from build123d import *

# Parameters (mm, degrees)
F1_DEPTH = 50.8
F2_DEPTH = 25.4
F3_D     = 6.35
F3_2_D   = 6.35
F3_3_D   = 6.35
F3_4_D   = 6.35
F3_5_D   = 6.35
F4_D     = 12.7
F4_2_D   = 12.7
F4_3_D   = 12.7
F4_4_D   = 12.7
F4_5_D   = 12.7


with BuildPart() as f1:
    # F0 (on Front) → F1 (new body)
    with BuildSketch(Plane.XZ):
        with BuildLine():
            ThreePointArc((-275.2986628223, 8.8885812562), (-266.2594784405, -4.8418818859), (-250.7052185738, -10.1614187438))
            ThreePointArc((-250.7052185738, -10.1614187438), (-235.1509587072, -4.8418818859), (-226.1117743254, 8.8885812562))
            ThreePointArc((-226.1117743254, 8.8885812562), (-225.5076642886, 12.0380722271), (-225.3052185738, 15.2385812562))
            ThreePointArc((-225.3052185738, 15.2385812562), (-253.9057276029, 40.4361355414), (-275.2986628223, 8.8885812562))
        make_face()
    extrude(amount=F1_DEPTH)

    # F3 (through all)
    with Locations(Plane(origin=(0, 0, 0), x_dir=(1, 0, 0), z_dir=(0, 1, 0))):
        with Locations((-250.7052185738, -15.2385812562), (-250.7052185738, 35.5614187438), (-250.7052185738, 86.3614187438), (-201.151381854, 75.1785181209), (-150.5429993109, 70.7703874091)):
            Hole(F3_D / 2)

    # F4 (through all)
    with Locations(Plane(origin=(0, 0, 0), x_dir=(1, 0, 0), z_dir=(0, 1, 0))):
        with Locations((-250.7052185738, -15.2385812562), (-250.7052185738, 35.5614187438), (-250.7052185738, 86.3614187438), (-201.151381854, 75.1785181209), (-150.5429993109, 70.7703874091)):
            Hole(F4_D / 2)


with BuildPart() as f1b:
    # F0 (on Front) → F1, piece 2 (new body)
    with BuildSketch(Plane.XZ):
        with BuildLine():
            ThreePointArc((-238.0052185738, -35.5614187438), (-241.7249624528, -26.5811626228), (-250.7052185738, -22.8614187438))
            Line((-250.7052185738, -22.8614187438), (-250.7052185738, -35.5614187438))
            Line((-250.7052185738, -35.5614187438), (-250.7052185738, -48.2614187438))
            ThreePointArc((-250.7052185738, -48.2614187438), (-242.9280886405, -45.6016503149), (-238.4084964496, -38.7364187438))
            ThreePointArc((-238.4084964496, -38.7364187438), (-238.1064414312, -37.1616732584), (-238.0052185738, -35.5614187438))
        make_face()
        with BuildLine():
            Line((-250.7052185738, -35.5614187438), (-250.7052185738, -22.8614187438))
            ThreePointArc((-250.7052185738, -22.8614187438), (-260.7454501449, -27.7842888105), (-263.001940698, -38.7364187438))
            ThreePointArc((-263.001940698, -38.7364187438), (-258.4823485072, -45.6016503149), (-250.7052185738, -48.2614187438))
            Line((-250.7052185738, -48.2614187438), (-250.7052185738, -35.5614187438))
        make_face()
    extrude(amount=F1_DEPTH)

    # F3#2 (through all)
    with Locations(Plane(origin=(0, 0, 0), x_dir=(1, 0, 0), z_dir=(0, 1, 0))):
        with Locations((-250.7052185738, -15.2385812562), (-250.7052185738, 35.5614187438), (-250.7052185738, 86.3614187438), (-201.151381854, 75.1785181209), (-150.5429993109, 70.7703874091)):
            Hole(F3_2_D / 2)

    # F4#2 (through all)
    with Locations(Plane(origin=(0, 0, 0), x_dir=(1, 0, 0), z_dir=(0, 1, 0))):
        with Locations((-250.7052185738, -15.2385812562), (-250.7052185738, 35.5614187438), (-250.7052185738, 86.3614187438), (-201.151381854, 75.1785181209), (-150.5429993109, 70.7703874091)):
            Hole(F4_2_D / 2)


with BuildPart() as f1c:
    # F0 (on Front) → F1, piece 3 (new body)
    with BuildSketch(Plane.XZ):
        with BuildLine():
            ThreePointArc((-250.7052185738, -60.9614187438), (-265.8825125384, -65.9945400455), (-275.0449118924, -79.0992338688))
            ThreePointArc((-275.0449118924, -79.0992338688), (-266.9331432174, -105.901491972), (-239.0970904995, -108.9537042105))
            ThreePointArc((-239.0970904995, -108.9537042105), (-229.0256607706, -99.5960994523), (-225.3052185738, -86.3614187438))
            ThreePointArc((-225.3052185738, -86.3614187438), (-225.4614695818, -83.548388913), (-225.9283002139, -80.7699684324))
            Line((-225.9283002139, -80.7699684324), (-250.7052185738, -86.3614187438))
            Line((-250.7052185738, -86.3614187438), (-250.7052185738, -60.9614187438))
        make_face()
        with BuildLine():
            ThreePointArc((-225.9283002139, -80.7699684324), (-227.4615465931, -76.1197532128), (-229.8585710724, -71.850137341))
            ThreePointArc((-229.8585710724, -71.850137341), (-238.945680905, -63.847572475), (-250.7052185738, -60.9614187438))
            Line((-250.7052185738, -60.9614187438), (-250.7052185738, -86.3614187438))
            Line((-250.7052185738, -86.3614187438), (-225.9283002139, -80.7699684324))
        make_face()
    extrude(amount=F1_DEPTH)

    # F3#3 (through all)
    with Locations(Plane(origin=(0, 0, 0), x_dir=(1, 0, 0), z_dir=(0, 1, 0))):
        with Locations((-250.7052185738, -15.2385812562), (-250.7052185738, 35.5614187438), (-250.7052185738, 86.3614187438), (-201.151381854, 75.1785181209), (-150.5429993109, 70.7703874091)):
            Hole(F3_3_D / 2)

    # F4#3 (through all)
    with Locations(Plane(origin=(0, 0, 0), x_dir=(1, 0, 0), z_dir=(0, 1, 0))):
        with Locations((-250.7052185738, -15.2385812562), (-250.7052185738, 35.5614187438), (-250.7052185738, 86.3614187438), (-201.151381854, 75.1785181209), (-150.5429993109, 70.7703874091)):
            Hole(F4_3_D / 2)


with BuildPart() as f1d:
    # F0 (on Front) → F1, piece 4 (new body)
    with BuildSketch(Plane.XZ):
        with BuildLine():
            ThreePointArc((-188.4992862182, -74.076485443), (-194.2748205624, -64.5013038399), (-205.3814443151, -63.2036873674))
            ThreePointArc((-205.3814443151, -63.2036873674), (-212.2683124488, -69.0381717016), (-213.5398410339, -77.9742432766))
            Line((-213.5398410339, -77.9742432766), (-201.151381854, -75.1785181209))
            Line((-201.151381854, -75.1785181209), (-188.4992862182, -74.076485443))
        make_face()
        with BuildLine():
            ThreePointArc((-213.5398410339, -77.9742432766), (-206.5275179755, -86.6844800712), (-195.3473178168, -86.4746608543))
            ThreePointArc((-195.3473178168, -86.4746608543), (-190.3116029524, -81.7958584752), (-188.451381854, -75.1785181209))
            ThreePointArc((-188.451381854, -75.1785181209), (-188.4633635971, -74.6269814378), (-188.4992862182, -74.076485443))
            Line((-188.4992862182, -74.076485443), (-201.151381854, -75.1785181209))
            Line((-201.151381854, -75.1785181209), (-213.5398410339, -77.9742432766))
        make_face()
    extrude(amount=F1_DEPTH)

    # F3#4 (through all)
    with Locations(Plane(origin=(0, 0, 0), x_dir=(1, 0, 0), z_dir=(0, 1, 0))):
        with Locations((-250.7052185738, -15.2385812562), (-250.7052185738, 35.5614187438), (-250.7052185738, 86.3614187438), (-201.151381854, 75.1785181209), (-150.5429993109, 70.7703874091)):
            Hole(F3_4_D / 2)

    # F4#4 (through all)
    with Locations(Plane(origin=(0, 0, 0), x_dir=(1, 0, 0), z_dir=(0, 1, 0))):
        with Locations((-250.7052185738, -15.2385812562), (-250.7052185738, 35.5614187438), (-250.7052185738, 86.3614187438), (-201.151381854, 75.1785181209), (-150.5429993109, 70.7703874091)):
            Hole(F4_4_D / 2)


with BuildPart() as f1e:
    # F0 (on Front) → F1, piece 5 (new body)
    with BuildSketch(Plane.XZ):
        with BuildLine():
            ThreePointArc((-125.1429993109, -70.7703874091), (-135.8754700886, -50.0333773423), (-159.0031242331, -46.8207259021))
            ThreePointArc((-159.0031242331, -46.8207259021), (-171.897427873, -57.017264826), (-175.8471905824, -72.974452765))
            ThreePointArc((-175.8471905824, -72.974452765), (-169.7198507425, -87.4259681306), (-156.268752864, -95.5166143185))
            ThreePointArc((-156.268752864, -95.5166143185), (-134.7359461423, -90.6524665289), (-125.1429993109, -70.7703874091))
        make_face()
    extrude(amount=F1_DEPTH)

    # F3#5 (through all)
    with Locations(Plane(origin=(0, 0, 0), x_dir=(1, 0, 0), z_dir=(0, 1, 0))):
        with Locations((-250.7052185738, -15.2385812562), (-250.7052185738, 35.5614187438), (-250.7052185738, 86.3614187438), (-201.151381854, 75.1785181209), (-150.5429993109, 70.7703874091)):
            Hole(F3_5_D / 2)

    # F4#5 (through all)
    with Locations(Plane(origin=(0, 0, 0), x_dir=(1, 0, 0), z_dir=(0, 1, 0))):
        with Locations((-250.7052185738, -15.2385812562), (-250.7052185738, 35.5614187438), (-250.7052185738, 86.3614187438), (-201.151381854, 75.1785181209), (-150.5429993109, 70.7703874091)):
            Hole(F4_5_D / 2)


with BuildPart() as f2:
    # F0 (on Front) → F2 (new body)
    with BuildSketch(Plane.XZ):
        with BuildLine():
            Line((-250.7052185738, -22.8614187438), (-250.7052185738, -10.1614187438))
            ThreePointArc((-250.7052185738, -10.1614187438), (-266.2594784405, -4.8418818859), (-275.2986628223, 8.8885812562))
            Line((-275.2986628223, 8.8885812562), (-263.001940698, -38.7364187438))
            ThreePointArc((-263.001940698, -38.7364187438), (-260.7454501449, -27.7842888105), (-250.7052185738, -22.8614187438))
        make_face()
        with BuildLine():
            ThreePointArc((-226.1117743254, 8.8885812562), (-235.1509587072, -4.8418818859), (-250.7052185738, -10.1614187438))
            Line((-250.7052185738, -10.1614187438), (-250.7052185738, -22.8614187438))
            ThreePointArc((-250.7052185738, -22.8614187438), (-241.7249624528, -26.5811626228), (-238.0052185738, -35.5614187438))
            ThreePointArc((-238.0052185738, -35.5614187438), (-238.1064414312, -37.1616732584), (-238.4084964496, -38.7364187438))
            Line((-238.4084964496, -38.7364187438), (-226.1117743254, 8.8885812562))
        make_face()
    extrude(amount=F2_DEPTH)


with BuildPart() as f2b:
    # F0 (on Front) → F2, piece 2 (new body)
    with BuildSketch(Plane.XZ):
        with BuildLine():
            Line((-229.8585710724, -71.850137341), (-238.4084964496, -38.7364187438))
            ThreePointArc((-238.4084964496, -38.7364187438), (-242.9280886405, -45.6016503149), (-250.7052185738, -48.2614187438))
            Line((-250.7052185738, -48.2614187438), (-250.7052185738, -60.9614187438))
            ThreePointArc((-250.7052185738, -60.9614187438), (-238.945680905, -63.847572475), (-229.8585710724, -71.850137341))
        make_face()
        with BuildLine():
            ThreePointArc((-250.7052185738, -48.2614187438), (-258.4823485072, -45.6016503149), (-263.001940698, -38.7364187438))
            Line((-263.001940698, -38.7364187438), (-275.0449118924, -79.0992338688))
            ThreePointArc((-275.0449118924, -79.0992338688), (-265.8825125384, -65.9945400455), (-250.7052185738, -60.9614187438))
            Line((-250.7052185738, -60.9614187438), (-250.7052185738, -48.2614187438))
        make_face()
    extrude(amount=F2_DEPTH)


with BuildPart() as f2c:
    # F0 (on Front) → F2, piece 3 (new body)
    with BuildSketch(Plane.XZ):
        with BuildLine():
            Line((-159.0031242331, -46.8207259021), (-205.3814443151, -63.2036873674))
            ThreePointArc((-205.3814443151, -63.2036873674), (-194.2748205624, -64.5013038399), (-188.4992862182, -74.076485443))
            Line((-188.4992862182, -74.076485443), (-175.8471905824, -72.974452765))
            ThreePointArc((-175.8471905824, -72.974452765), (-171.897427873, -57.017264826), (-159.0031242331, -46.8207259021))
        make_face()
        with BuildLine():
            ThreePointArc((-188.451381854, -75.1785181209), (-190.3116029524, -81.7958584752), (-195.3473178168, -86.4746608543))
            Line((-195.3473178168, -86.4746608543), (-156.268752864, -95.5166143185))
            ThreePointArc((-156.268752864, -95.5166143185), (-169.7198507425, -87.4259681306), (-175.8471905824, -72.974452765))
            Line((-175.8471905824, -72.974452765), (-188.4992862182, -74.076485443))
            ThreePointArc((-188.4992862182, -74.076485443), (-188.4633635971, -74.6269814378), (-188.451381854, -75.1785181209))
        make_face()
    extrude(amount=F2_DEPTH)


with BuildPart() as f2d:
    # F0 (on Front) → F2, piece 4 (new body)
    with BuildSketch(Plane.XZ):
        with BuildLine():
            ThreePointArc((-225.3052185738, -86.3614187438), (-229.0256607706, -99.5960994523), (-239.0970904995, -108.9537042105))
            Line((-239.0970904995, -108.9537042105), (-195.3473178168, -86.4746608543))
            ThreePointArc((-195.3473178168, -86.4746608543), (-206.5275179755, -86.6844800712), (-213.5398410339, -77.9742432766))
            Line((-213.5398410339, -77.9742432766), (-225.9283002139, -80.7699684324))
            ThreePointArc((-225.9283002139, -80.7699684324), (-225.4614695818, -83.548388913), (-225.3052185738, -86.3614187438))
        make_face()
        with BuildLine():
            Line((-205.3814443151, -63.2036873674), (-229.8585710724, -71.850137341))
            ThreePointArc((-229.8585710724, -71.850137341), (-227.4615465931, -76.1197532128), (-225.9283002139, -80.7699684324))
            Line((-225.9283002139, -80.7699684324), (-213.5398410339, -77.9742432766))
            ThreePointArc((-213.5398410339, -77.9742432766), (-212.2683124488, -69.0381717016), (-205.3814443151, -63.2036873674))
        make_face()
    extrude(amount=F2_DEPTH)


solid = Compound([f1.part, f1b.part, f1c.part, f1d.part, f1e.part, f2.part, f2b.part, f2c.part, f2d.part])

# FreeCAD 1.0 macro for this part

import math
import FreeCAD as App
import Part
import Sketcher

V = App.Vector
Q = App.Units.Quantity

doc = App.newDocument("Part")
params = doc.addObject("Spreadsheet::Sheet", "Params")
for row, (alias, value) in enumerate([
    ("sketch1_radius", "1 in"),
    ("pad1_length", "2 in"),
    ("sketch2_diameter", "0.25 in"),
    ("hole_diameter", "0.25 in"),
    ("sketch3_diameter", "0.5 in"),
    ("hole2_diameter", "0.5 in"),
    ("sketch4_radius", "0.5 in"),
    ("pad2_length", "2 in"),
    ("sketch5_diameter", "0.25 in"),
    ("hole3_diameter", "0.25 in"),
    ("sketch6_diameter", "0.5 in"),
    ("hole4_diameter", "0.5 in"),
    ("sketch7_radius", "1 in"),
    ("pad3_length", "2 in"),
    ("sketch8_diameter", "0.25 in"),
    ("hole5_diameter", "0.25 in"),
    ("sketch9_diameter", "0.5 in"),
    ("hole6_diameter", "0.5 in"),
    ("sketch10_radius", "0.5 in"),
    ("pad4_length", "2 in"),
    ("sketch11_diameter", "0.25 in"),
    ("hole7_diameter", "0.25 in"),
    ("sketch12_diameter", "0.5 in"),
    ("hole8_diameter", "0.5 in"),
    ("sketch13_diameter", "2 in"),
    ("pad5_length", "2 in"),
    ("sketch14_diameter", "0.25 in"),
    ("hole9_diameter", "0.25 in"),
    ("sketch15_diameter", "0.5 in"),
    ("hole10_diameter", "0.5 in"),
    ("sketch16_radius", "1 in"),
    ("sketch16_radius2", "0.5 in"),
    ("pad6_length", "1 in"),
    ("sketch17_radius", "1 in"),
    ("sketch17_radius2", "0.5 in"),
    ("pad7_length", "1 in"),
    ("sketch18_radius", "1 in"),
    ("sketch18_radius2", "0.5 in"),
    ("pad8_length", "1 in"),
    ("sketch19_radius", "1 in"),
    ("sketch19_radius2", "0.5 in"),
    ("pad9_length", "1 in"),
], start=1):
    params.set(f"A{row}", alias)
    params.set(f"B{row}", "=" + value)
    params.setAlias(f"B{row}", alias)

body = doc.addObject("PartDesign::Body", "Body")

# Sketch on XZ plane
sketch1 = body.newObject("Sketcher::SketchObject", "Sketch")
sketch1.AttachmentSupport = (doc.getObject("XZ_Plane"), [""])
sketch1.MapMode = "FlatFace"
sketch1.addGeometry([
    Part.ArcOfCircle(Part.Circle(V(-250.705219, 15.238581, 0), V(0, 0, 1), 25.4), math.radians(-165.522488), math.radians(-14.477512)),
    Part.ArcOfCircle(Part.Circle(V(-250.705219, 15.238581, 0), V(0, 0, 1), 25.4), math.radians(-14.477512), math.radians(0)),
    Part.ArcOfCircle(Part.Circle(V(-250.705219, 15.238581, 0), V(0, 0, 1), 25.4), math.radians(0), math.radians(194.477512)),
], False)
sketch1.addConstraint([
    Sketcher.Constraint("Tangent", 0, 2, 1, 1),
    Sketcher.Constraint("Tangent", 1, 2, 2, 1),
    Sketcher.Constraint("Tangent", 2, 2, 0, 1),
    Sketcher.Constraint("Horizontal", 2, 3, 1, 2),
    Sketcher.Constraint("Horizontal", 0, 2, 2, 2),
    Sketcher.Constraint("Radius", 0, Q("1 in")),
    Sketcher.Constraint("DistanceY", 0, 2, 1, 3, Q("0.25 in")),
    Sketcher.Constraint("DistanceX", 0, 3, -1, 1, 250.705219),
    Sketcher.Constraint("DistanceY", -1, 1, 0, 3, 15.238581),
])
sketch1.setExpression("Constraints[5]", "Params.sketch1_radius")
pad1 = body.newObject("PartDesign::Pad", "Pad")
pad1.Profile = sketch1
pad1.setExpression("Length", "Params.pad1_length")

# Sketch on XZ plane
sketch2 = body.newObject("Sketcher::SketchObject", "Sketch001")
sketch2.AttachmentSupport = (doc.getObject("XZ_Plane"), [""])
sketch2.MapMode = "FlatFace"
sketch2.addGeometry([
    Part.Circle(V(-250.705219, 15.238581, 0), V(0, 0, 1), 3.175),  # 0
    Part.Circle(V(-250.705219, -35.561419, 0), V(0, 0, 1), 3.175),  # 1
    Part.Circle(V(-250.705219, -86.361419, 0), V(0, 0, 1), 3.175),  # 2
    Part.Circle(V(-201.151382, -75.178518, 0), V(0, 0, 1), 3.175),  # 3
    Part.Circle(V(-150.542999, -70.770387, 0), V(0, 0, 1), 3.175),  # 4
], False)
sketch2.addConstraint([
    Sketcher.Constraint("Equal", 0, 1),
    Sketcher.Constraint("Equal", 1, 2),
    Sketcher.Constraint("Equal", 2, 3),
    Sketcher.Constraint("Equal", 3, 4),
    Sketcher.Constraint("Vertical", 0, 3, 1, 3),
    Sketcher.Constraint("Vertical", 1, 3, 2, 3),
    Sketcher.Constraint("Diameter", 0, Q("0.25 in")),
    Sketcher.Constraint("DistanceY", 1, 3, 0, 3, Q("2 in")),
    Sketcher.Constraint("DistanceY", 2, 3, 1, 3, Q("2 in")),
    Sketcher.Constraint("DistanceX", 4, 3, -1, 1, 150.542999),
    Sketcher.Constraint("DistanceY", 2, 3, 3, 3, 11.182901),
    Sketcher.Constraint("DistanceX", 0, 3, -1, 1, 250.705219),
    Sketcher.Constraint("DistanceY", -1, 1, 0, 3, 15.238581),
    Sketcher.Constraint("DistanceX", 3, 3, -1, 1, 201.151382),
    Sketcher.Constraint("DistanceY", 3, 3, 4, 3, 4.408131),
])
sketch2.setExpression("Constraints[6]", "Params.sketch2_diameter")
doc.recompute()
hole = body.newObject("PartDesign::Hole", "Hole")
hole.Profile = sketch2
hole.ThreadType = "None"
hole.setExpression("Diameter", "Params.hole_diameter")
hole.DepthType = "ThroughAll"
hole.Reversed = True

# Sketch on XZ plane
sketch3 = body.newObject("Sketcher::SketchObject", "Sketch002")
sketch3.AttachmentSupport = (doc.getObject("XZ_Plane"), [""])
sketch3.MapMode = "FlatFace"
sketch3.addGeometry([
    Part.Circle(V(-250.705219, 15.238581, 0), V(0, 0, 1), 6.35),  # 0
    Part.Circle(V(-250.705219, -35.561419, 0), V(0, 0, 1), 6.35),  # 1
    Part.Circle(V(-250.705219, -86.361419, 0), V(0, 0, 1), 6.35),  # 2
    Part.Circle(V(-201.151382, -75.178518, 0), V(0, 0, 1), 6.35),  # 3
    Part.Circle(V(-150.542999, -70.770387, 0), V(0, 0, 1), 6.35),  # 4
], False)
sketch3.addConstraint([
    Sketcher.Constraint("Equal", 0, 1),
    Sketcher.Constraint("Equal", 1, 2),
    Sketcher.Constraint("Equal", 2, 3),
    Sketcher.Constraint("Equal", 3, 4),
    Sketcher.Constraint("Vertical", 0, 3, 1, 3),
    Sketcher.Constraint("Vertical", 1, 3, 2, 3),
    Sketcher.Constraint("Diameter", 0, Q("0.5 in")),
    Sketcher.Constraint("DistanceY", 1, 3, 0, 3, Q("2 in")),
    Sketcher.Constraint("DistanceY", 2, 3, 1, 3, Q("2 in")),
    Sketcher.Constraint("DistanceX", 4, 3, -1, 1, 150.542999),
    Sketcher.Constraint("DistanceY", 2, 3, 3, 3, 11.182901),
    Sketcher.Constraint("DistanceX", 0, 3, -1, 1, 250.705219),
    Sketcher.Constraint("DistanceY", -1, 1, 0, 3, 15.238581),
    Sketcher.Constraint("DistanceX", 3, 3, -1, 1, 201.151382),
    Sketcher.Constraint("DistanceY", 3, 3, 4, 3, 4.408131),
])
sketch3.setExpression("Constraints[6]", "Params.sketch3_diameter")
doc.recompute()
hole2 = body.newObject("PartDesign::Hole", "Hole001")
hole2.Profile = sketch3
hole2.ThreadType = "None"
hole2.setExpression("Diameter", "Params.hole2_diameter")
hole2.DepthType = "ThroughAll"
hole2.Reversed = True
body2 = doc.addObject("PartDesign::Body", "Body001")

# Sketch on XZ plane
sketch4 = body2.newObject("Sketcher::SketchObject", "Sketch003")
sketch4.AttachmentSupport = (doc.getObject("XZ_Plane001"), [""])
sketch4.MapMode = "FlatFace"
sketch4.addGeometry([
    Part.ArcOfCircle(Part.Circle(V(-250.705219, -35.561419, 0), V(0, 0, 1), 12.7), math.radians(0), math.radians(90)),  # 0
    Part.ArcOfCircle(Part.Circle(V(-250.705219, -35.561419, 0), V(0, 0, 1), 12.7), math.radians(90), math.radians(194.477512)),  # 1
    Part.ArcOfCircle(Part.Circle(V(-250.705219, -35.561419, 0), V(0, 0, 1), 12.7), math.radians(-165.522488), math.radians(-90)),  # 2
    Part.ArcOfCircle(Part.Circle(V(-250.705219, -35.561419, 0), V(0, 0, 1), 12.7), math.radians(-90), math.radians(-14.477512)),  # 3
    Part.ArcOfCircle(Part.Circle(V(-250.705219, -35.561419, 0), V(0, 0, 1), 12.7), math.radians(-14.477512), math.radians(0)),  # 4
], False)
sketch4.addConstraint([
    Sketcher.Constraint("Tangent", 0, 2, 1, 1),
    Sketcher.Constraint("Tangent", 1, 2, 2, 1),
    Sketcher.Constraint("Tangent", 2, 2, 3, 1),
    Sketcher.Constraint("Tangent", 3, 2, 4, 1),
    Sketcher.Constraint("Tangent", 4, 2, 0, 1),
    Sketcher.Constraint("Coincident", 2, 3, 0, 3),
    Sketcher.Constraint("Horizontal", 1, 2, 3, 2),
    Sketcher.Constraint("Horizontal", 3, 3, 4, 2),
    Sketcher.Constraint("Vertical", 4, 3, 0, 2),
    Sketcher.Constraint("Vertical", 0, 2, 2, 2),
    Sketcher.Constraint("Radius", 0, Q("0.5 in")),
    Sketcher.Constraint("DistanceY", 1, 2, 0, 3, Q("0.125 in")),
    Sketcher.Constraint("DistanceX", 0, 3, -1, 1, 250.705219),
    Sketcher.Constraint("DistanceY", 0, 3, -1, 1, 35.561419),
])
sketch4.setExpression("Constraints[10]", "Params.sketch4_radius")
pad2 = body2.newObject("PartDesign::Pad", "Pad001")
pad2.Profile = sketch4
pad2.setExpression("Length", "Params.pad2_length")

# Sketch on XZ plane
sketch5 = body2.newObject("Sketcher::SketchObject", "Sketch004")
sketch5.AttachmentSupport = (doc.getObject("XZ_Plane001"), [""])
sketch5.MapMode = "FlatFace"
sketch5.addGeometry([
    Part.Circle(V(-250.705219, 15.238581, 0), V(0, 0, 1), 3.175),  # 0
    Part.Circle(V(-250.705219, -35.561419, 0), V(0, 0, 1), 3.175),  # 1
    Part.Circle(V(-250.705219, -86.361419, 0), V(0, 0, 1), 3.175),  # 2
    Part.Circle(V(-201.151382, -75.178518, 0), V(0, 0, 1), 3.175),  # 3
    Part.Circle(V(-150.542999, -70.770387, 0), V(0, 0, 1), 3.175),  # 4
], False)
sketch5.addConstraint([
    Sketcher.Constraint("Equal", 0, 1),
    Sketcher.Constraint("Equal", 1, 2),
    Sketcher.Constraint("Equal", 2, 3),
    Sketcher.Constraint("Equal", 3, 4),
    Sketcher.Constraint("Vertical", 0, 3, 1, 3),
    Sketcher.Constraint("Vertical", 1, 3, 2, 3),
    Sketcher.Constraint("Diameter", 0, Q("0.25 in")),
    Sketcher.Constraint("DistanceY", 1, 3, 0, 3, Q("2 in")),
    Sketcher.Constraint("DistanceY", 2, 3, 1, 3, Q("2 in")),
    Sketcher.Constraint("DistanceX", 4, 3, -1, 1, 150.542999),
    Sketcher.Constraint("DistanceY", 2, 3, 3, 3, 11.182901),
    Sketcher.Constraint("DistanceX", 0, 3, -1, 1, 250.705219),
    Sketcher.Constraint("DistanceY", -1, 1, 0, 3, 15.238581),
    Sketcher.Constraint("DistanceX", 3, 3, -1, 1, 201.151382),
    Sketcher.Constraint("DistanceY", 3, 3, 4, 3, 4.408131),
])
sketch5.setExpression("Constraints[6]", "Params.sketch5_diameter")
doc.recompute()
hole3 = body2.newObject("PartDesign::Hole", "Hole002")
hole3.Profile = sketch5
hole3.ThreadType = "None"
hole3.setExpression("Diameter", "Params.hole3_diameter")
hole3.DepthType = "ThroughAll"
hole3.Reversed = True

# Sketch on XZ plane
sketch6 = body2.newObject("Sketcher::SketchObject", "Sketch005")
sketch6.AttachmentSupport = (doc.getObject("XZ_Plane001"), [""])
sketch6.MapMode = "FlatFace"
sketch6.addGeometry([
    Part.Circle(V(-250.705219, 15.238581, 0), V(0, 0, 1), 6.35),  # 0
    Part.Circle(V(-250.705219, -35.561419, 0), V(0, 0, 1), 6.35),  # 1
    Part.Circle(V(-250.705219, -86.361419, 0), V(0, 0, 1), 6.35),  # 2
    Part.Circle(V(-201.151382, -75.178518, 0), V(0, 0, 1), 6.35),  # 3
    Part.Circle(V(-150.542999, -70.770387, 0), V(0, 0, 1), 6.35),  # 4
], False)
sketch6.addConstraint([
    Sketcher.Constraint("Equal", 0, 1),
    Sketcher.Constraint("Equal", 1, 2),
    Sketcher.Constraint("Equal", 2, 3),
    Sketcher.Constraint("Equal", 3, 4),
    Sketcher.Constraint("Vertical", 0, 3, 1, 3),
    Sketcher.Constraint("Vertical", 1, 3, 2, 3),
    Sketcher.Constraint("Diameter", 0, Q("0.5 in")),
    Sketcher.Constraint("DistanceY", 1, 3, 0, 3, Q("2 in")),
    Sketcher.Constraint("DistanceY", 2, 3, 1, 3, Q("2 in")),
    Sketcher.Constraint("DistanceX", 4, 3, -1, 1, 150.542999),
    Sketcher.Constraint("DistanceY", 2, 3, 3, 3, 11.182901),
    Sketcher.Constraint("DistanceX", 0, 3, -1, 1, 250.705219),
    Sketcher.Constraint("DistanceY", -1, 1, 0, 3, 15.238581),
    Sketcher.Constraint("DistanceX", 3, 3, -1, 1, 201.151382),
    Sketcher.Constraint("DistanceY", 3, 3, 4, 3, 4.408131),
])
sketch6.setExpression("Constraints[6]", "Params.sketch6_diameter")
doc.recompute()
hole4 = body2.newObject("PartDesign::Hole", "Hole003")
hole4.Profile = sketch6
hole4.ThreadType = "None"
hole4.setExpression("Diameter", "Params.hole4_diameter")
hole4.DepthType = "ThroughAll"
hole4.Reversed = True
body3 = doc.addObject("PartDesign::Body", "Body002")

# Sketch on XZ plane
sketch7 = body3.newObject("Sketcher::SketchObject", "Sketch006")
sketch7.AttachmentSupport = (doc.getObject("XZ_Plane002"), [""])
sketch7.MapMode = "FlatFace"
sketch7.addGeometry([
    Part.ArcOfCircle(Part.Circle(V(-250.705219, -86.361419, 0), V(0, 0, 1), 25.4), math.radians(90), math.radians(163.386582)),  # 0
    Part.ArcOfCircle(Part.Circle(V(-250.705219, -86.361419, 0), V(0, 0, 1), 25.4), math.radians(163.386582), math.radians(297.194524)),  # 1
    Part.ArcOfCircle(Part.Circle(V(-250.705219, -86.361419, 0), V(0, 0, 1), 25.4), math.radians(-62.805476), math.radians(0)),  # 2
    Part.ArcOfCircle(Part.Circle(V(-250.705219, -86.361419, 0), V(0, 0, 1), 25.4), math.radians(0), math.radians(12.717012)),  # 3
    Part.ArcOfCircle(Part.Circle(V(-250.705219, -86.361419, 0), V(0, 0, 1), 25.4), math.radians(12.717012), math.radians(34.841647)),  # 4
    Part.ArcOfCircle(Part.Circle(V(-250.705219, -86.361419, 0), V(0, 0, 1), 25.4), math.radians(34.841647), math.radians(90)),  # 5
], False)
sketch7.addConstraint([
    Sketcher.Constraint("Tangent", 0, 2, 1, 1),
    Sketcher.Constraint("Tangent", 1, 2, 2, 1),
    Sketcher.Constraint("Tangent", 2, 2, 3, 1),
    Sketcher.Constraint("Tangent", 3, 2, 4, 1),
    Sketcher.Constraint("Tangent", 4, 2, 5, 1),
    Sketcher.Constraint("Tangent", 5, 2, 0, 1),
    Sketcher.Constraint("Coincident", 2, 3, 0, 3),
    Sketcher.Constraint("Equal", 2, 3),
    Sketcher.Constraint("Horizontal", 5, 3, 2, 2),
    Sketcher.Constraint("Vertical", 4, 3, 5, 2),
    Sketcher.Constraint("Radius", 0, Q("1 in")),
    Sketcher.Constraint("DistanceX", 3, 2, -1, 1, 225.9283),
    Sketcher.Constraint("DistanceX", 0, 3, -1, 1, 250.705219),
    Sketcher.Constraint("DistanceY", 0, 3, -1, 1, 86.361419),
    Sketcher.Constraint("DistanceX", 0, 2, -1, 1, 275.044912),
    Sketcher.Constraint("DistanceX", 1, 2, -1, 1, 239.097091),
    Sketcher.Constraint("DistanceX", 4, 2, -1, 1, 229.858571),
])
sketch7.setExpression("Constraints[10]", "Params.sketch7_radius")
pad3 = body3.newObject("PartDesign::Pad", "Pad002")
pad3.Profile = sketch7
pad3.setExpression("Length", "Params.pad3_length")

# Sketch on XZ plane
sketch8 = body3.newObject("Sketcher::SketchObject", "Sketch007")
sketch8.AttachmentSupport = (doc.getObject("XZ_Plane002"), [""])
sketch8.MapMode = "FlatFace"
sketch8.addGeometry([
    Part.Circle(V(-250.705219, 15.238581, 0), V(0, 0, 1), 3.175),  # 0
    Part.Circle(V(-250.705219, -35.561419, 0), V(0, 0, 1), 3.175),  # 1
    Part.Circle(V(-250.705219, -86.361419, 0), V(0, 0, 1), 3.175),  # 2
    Part.Circle(V(-201.151382, -75.178518, 0), V(0, 0, 1), 3.175),  # 3
    Part.Circle(V(-150.542999, -70.770387, 0), V(0, 0, 1), 3.175),  # 4
], False)
sketch8.addConstraint([
    Sketcher.Constraint("Equal", 0, 1),
    Sketcher.Constraint("Equal", 1, 2),
    Sketcher.Constraint("Equal", 2, 3),
    Sketcher.Constraint("Equal", 3, 4),
    Sketcher.Constraint("Vertical", 0, 3, 1, 3),
    Sketcher.Constraint("Vertical", 1, 3, 2, 3),
    Sketcher.Constraint("Diameter", 0, Q("0.25 in")),
    Sketcher.Constraint("DistanceY", 1, 3, 0, 3, Q("2 in")),
    Sketcher.Constraint("DistanceY", 2, 3, 1, 3, Q("2 in")),
    Sketcher.Constraint("DistanceX", 4, 3, -1, 1, 150.542999),
    Sketcher.Constraint("DistanceY", 2, 3, 3, 3, 11.182901),
    Sketcher.Constraint("DistanceX", 0, 3, -1, 1, 250.705219),
    Sketcher.Constraint("DistanceY", -1, 1, 0, 3, 15.238581),
    Sketcher.Constraint("DistanceX", 3, 3, -1, 1, 201.151382),
    Sketcher.Constraint("DistanceY", 3, 3, 4, 3, 4.408131),
])
sketch8.setExpression("Constraints[6]", "Params.sketch8_diameter")
doc.recompute()
hole5 = body3.newObject("PartDesign::Hole", "Hole004")
hole5.Profile = sketch8
hole5.ThreadType = "None"
hole5.setExpression("Diameter", "Params.hole5_diameter")
hole5.DepthType = "ThroughAll"
hole5.Reversed = True

# Sketch on XZ plane
sketch9 = body3.newObject("Sketcher::SketchObject", "Sketch008")
sketch9.AttachmentSupport = (doc.getObject("XZ_Plane002"), [""])
sketch9.MapMode = "FlatFace"
sketch9.addGeometry([
    Part.Circle(V(-250.705219, 15.238581, 0), V(0, 0, 1), 6.35),  # 0
    Part.Circle(V(-250.705219, -35.561419, 0), V(0, 0, 1), 6.35),  # 1
    Part.Circle(V(-250.705219, -86.361419, 0), V(0, 0, 1), 6.35),  # 2
    Part.Circle(V(-201.151382, -75.178518, 0), V(0, 0, 1), 6.35),  # 3
    Part.Circle(V(-150.542999, -70.770387, 0), V(0, 0, 1), 6.35),  # 4
], False)
sketch9.addConstraint([
    Sketcher.Constraint("Equal", 0, 1),
    Sketcher.Constraint("Equal", 1, 2),
    Sketcher.Constraint("Equal", 2, 3),
    Sketcher.Constraint("Equal", 3, 4),
    Sketcher.Constraint("Vertical", 0, 3, 1, 3),
    Sketcher.Constraint("Vertical", 1, 3, 2, 3),
    Sketcher.Constraint("Diameter", 0, Q("0.5 in")),
    Sketcher.Constraint("DistanceY", 1, 3, 0, 3, Q("2 in")),
    Sketcher.Constraint("DistanceY", 2, 3, 1, 3, Q("2 in")),
    Sketcher.Constraint("DistanceX", 4, 3, -1, 1, 150.542999),
    Sketcher.Constraint("DistanceY", 2, 3, 3, 3, 11.182901),
    Sketcher.Constraint("DistanceX", 0, 3, -1, 1, 250.705219),
    Sketcher.Constraint("DistanceY", -1, 1, 0, 3, 15.238581),
    Sketcher.Constraint("DistanceX", 3, 3, -1, 1, 201.151382),
    Sketcher.Constraint("DistanceY", 3, 3, 4, 3, 4.408131),
])
sketch9.setExpression("Constraints[6]", "Params.sketch9_diameter")
doc.recompute()
hole6 = body3.newObject("PartDesign::Hole", "Hole005")
hole6.Profile = sketch9
hole6.ThreadType = "None"
hole6.setExpression("Diameter", "Params.hole6_diameter")
hole6.DepthType = "ThroughAll"
hole6.Reversed = True
body4 = doc.addObject("PartDesign::Body", "Body003")

# Sketch on XZ plane
sketch10 = body4.newObject("Sketcher::SketchObject", "Sketch009")
sketch10.AttachmentSupport = (doc.getObject("XZ_Plane003"), [""])
sketch10.MapMode = "FlatFace"
sketch10.addGeometry([
    Part.ArcOfCircle(Part.Circle(V(-201.151382, -75.178518, 0), V(0, 0, 1), 12.7), math.radians(4.978058), math.radians(109.45557)),  # 0
    Part.ArcOfCircle(Part.Circle(V(-201.151382, -75.178518, 0), V(0, 0, 1), 12.7), math.radians(109.45557), math.radians(192.717012)),  # 1
    Part.ArcOfCircle(Part.Circle(V(-201.151382, -75.178518, 0), V(0, 0, 1), 12.7), math.radians(-167.282988), math.radians(-62.805476)),  # 2
    Part.ArcOfCircle(Part.Circle(V(-201.151382, -75.178518, 0), V(0, 0, 1), 12.7), math.radians(-62.805476), math.radians(0)),  # 3
    Part.ArcOfCircle(Part.Circle(V(-201.151382, -75.178518, 0), V(0, 0, 1), 12.7), math.radians(0), math.radians(4.978058)),  # 4
], False)
sketch10.addConstraint([
    Sketcher.Constraint("Tangent", 0, 2, 1, 1),
    Sketcher.Constraint("Tangent", 1, 2, 2, 1),
    Sketcher.Constraint("Tangent", 2, 2, 3, 1),
    Sketcher.Constraint("Tangent", 3, 2, 4, 1),
    Sketcher.Constraint("Tangent", 4, 2, 0, 1),
    Sketcher.Constraint("Coincident", 2, 3, 0, 3),
    Sketcher.Constraint("Horizontal", 4, 3, 3, 2),
    Sketcher.Constraint("Radius", 0, Q("0.5 in")),
    Sketcher.Constraint("DistanceX", 0, 3, -1, 1, 201.151382),
    Sketcher.Constraint("DistanceY", 0, 3, -1, 1, 75.178518),
    Sketcher.Constraint("DistanceX", 1, 2, -1, 1, 213.539841),
    Sketcher.Constraint("DistanceY", 2, 2, -1, 1, 86.474661),
    Sketcher.Constraint("DistanceY", 4, 3, 0, 2, 11.974831),
    Sketcher.Constraint("DistanceX", 4, 2, -1, 1, 188.499286),
])
sketch10.setExpression("Constraints[7]", "Params.sketch10_radius")
pad4 = body4.newObject("PartDesign::Pad", "Pad003")
pad4.Profile = sketch10
pad4.setExpression("Length", "Params.pad4_length")

# Sketch on XZ plane
sketch11 = body4.newObject("Sketcher::SketchObject", "Sketch010")
sketch11.AttachmentSupport = (doc.getObject("XZ_Plane003"), [""])
sketch11.MapMode = "FlatFace"
sketch11.addGeometry([
    Part.Circle(V(-250.705219, 15.238581, 0), V(0, 0, 1), 3.175),  # 0
    Part.Circle(V(-250.705219, -35.561419, 0), V(0, 0, 1), 3.175),  # 1
    Part.Circle(V(-250.705219, -86.361419, 0), V(0, 0, 1), 3.175),  # 2
    Part.Circle(V(-201.151382, -75.178518, 0), V(0, 0, 1), 3.175),  # 3
    Part.Circle(V(-150.542999, -70.770387, 0), V(0, 0, 1), 3.175),  # 4
], False)
sketch11.addConstraint([
    Sketcher.Constraint("Equal", 0, 1),
    Sketcher.Constraint("Equal", 1, 2),
    Sketcher.Constraint("Equal", 2, 3),
    Sketcher.Constraint("Equal", 3, 4),
    Sketcher.Constraint("Vertical", 0, 3, 1, 3),
    Sketcher.Constraint("Vertical", 1, 3, 2, 3),
    Sketcher.Constraint("Diameter", 0, Q("0.25 in")),
    Sketcher.Constraint("DistanceY", 1, 3, 0, 3, Q("2 in")),
    Sketcher.Constraint("DistanceY", 2, 3, 1, 3, Q("2 in")),
    Sketcher.Constraint("DistanceX", 4, 3, -1, 1, 150.542999),
    Sketcher.Constraint("DistanceY", 2, 3, 3, 3, 11.182901),
    Sketcher.Constraint("DistanceX", 0, 3, -1, 1, 250.705219),
    Sketcher.Constraint("DistanceY", -1, 1, 0, 3, 15.238581),
    Sketcher.Constraint("DistanceX", 3, 3, -1, 1, 201.151382),
    Sketcher.Constraint("DistanceY", 3, 3, 4, 3, 4.408131),
])
sketch11.setExpression("Constraints[6]", "Params.sketch11_diameter")
doc.recompute()
hole7 = body4.newObject("PartDesign::Hole", "Hole006")
hole7.Profile = sketch11
hole7.ThreadType = "None"
hole7.setExpression("Diameter", "Params.hole7_diameter")
hole7.DepthType = "ThroughAll"
hole7.Reversed = True

# Sketch on XZ plane
sketch12 = body4.newObject("Sketcher::SketchObject", "Sketch011")
sketch12.AttachmentSupport = (doc.getObject("XZ_Plane003"), [""])
sketch12.MapMode = "FlatFace"
sketch12.addGeometry([
    Part.Circle(V(-250.705219, 15.238581, 0), V(0, 0, 1), 6.35),  # 0
    Part.Circle(V(-250.705219, -35.561419, 0), V(0, 0, 1), 6.35),  # 1
    Part.Circle(V(-250.705219, -86.361419, 0), V(0, 0, 1), 6.35),  # 2
    Part.Circle(V(-201.151382, -75.178518, 0), V(0, 0, 1), 6.35),  # 3
    Part.Circle(V(-150.542999, -70.770387, 0), V(0, 0, 1), 6.35),  # 4
], False)
sketch12.addConstraint([
    Sketcher.Constraint("Equal", 0, 1),
    Sketcher.Constraint("Equal", 1, 2),
    Sketcher.Constraint("Equal", 2, 3),
    Sketcher.Constraint("Equal", 3, 4),
    Sketcher.Constraint("Vertical", 0, 3, 1, 3),
    Sketcher.Constraint("Vertical", 1, 3, 2, 3),
    Sketcher.Constraint("Diameter", 0, Q("0.5 in")),
    Sketcher.Constraint("DistanceY", 1, 3, 0, 3, Q("2 in")),
    Sketcher.Constraint("DistanceY", 2, 3, 1, 3, Q("2 in")),
    Sketcher.Constraint("DistanceX", 4, 3, -1, 1, 150.542999),
    Sketcher.Constraint("DistanceY", 2, 3, 3, 3, 11.182901),
    Sketcher.Constraint("DistanceX", 0, 3, -1, 1, 250.705219),
    Sketcher.Constraint("DistanceY", -1, 1, 0, 3, 15.238581),
    Sketcher.Constraint("DistanceX", 3, 3, -1, 1, 201.151382),
    Sketcher.Constraint("DistanceY", 3, 3, 4, 3, 4.408131),
])
sketch12.setExpression("Constraints[6]", "Params.sketch12_diameter")
doc.recompute()
hole8 = body4.newObject("PartDesign::Hole", "Hole007")
hole8.Profile = sketch12
hole8.ThreadType = "None"
hole8.setExpression("Diameter", "Params.hole8_diameter")
hole8.DepthType = "ThroughAll"
hole8.Reversed = True
body5 = doc.addObject("PartDesign::Body", "Body004")

# Sketch on XZ plane
sketch13 = body5.newObject("Sketcher::SketchObject", "Sketch012")
sketch13.AttachmentSupport = (doc.getObject("XZ_Plane004"), [""])
sketch13.MapMode = "FlatFace"
sketch13.addGeometry(Part.Circle(V(-150.542999, -70.770387, 0), V(0, 0, 1), 25.4), False)
sketch13.addConstraint([
    Sketcher.Constraint("Diameter", 0, Q("2 in")),
    Sketcher.Constraint("DistanceX", 0, 3, -1, 1, 150.542999),
    Sketcher.Constraint("DistanceY", 0, 3, -1, 1, 70.770387),
])
sketch13.setExpression("Constraints[0]", "Params.sketch13_diameter")
pad5 = body5.newObject("PartDesign::Pad", "Pad004")
pad5.Profile = sketch13
pad5.setExpression("Length", "Params.pad5_length")

# Sketch on XZ plane
sketch14 = body5.newObject("Sketcher::SketchObject", "Sketch013")
sketch14.AttachmentSupport = (doc.getObject("XZ_Plane004"), [""])
sketch14.MapMode = "FlatFace"
sketch14.addGeometry([
    Part.Circle(V(-250.705219, 15.238581, 0), V(0, 0, 1), 3.175),  # 0
    Part.Circle(V(-250.705219, -35.561419, 0), V(0, 0, 1), 3.175),  # 1
    Part.Circle(V(-250.705219, -86.361419, 0), V(0, 0, 1), 3.175),  # 2
    Part.Circle(V(-201.151382, -75.178518, 0), V(0, 0, 1), 3.175),  # 3
    Part.Circle(V(-150.542999, -70.770387, 0), V(0, 0, 1), 3.175),  # 4
], False)
sketch14.addConstraint([
    Sketcher.Constraint("Equal", 0, 1),
    Sketcher.Constraint("Equal", 1, 2),
    Sketcher.Constraint("Equal", 2, 3),
    Sketcher.Constraint("Equal", 3, 4),
    Sketcher.Constraint("Vertical", 0, 3, 1, 3),
    Sketcher.Constraint("Vertical", 1, 3, 2, 3),
    Sketcher.Constraint("Diameter", 0, Q("0.25 in")),
    Sketcher.Constraint("DistanceY", 1, 3, 0, 3, Q("2 in")),
    Sketcher.Constraint("DistanceY", 2, 3, 1, 3, Q("2 in")),
    Sketcher.Constraint("DistanceX", 4, 3, -1, 1, 150.542999),
    Sketcher.Constraint("DistanceY", 2, 3, 3, 3, 11.182901),
    Sketcher.Constraint("DistanceX", 0, 3, -1, 1, 250.705219),
    Sketcher.Constraint("DistanceY", -1, 1, 0, 3, 15.238581),
    Sketcher.Constraint("DistanceX", 3, 3, -1, 1, 201.151382),
    Sketcher.Constraint("DistanceY", 3, 3, 4, 3, 4.408131),
])
sketch14.setExpression("Constraints[6]", "Params.sketch14_diameter")
doc.recompute()
hole9 = body5.newObject("PartDesign::Hole", "Hole008")
hole9.Profile = sketch14
hole9.ThreadType = "None"
hole9.setExpression("Diameter", "Params.hole9_diameter")
hole9.DepthType = "ThroughAll"
hole9.Reversed = True

# Sketch on XZ plane
sketch15 = body5.newObject("Sketcher::SketchObject", "Sketch014")
sketch15.AttachmentSupport = (doc.getObject("XZ_Plane004"), [""])
sketch15.MapMode = "FlatFace"
sketch15.addGeometry([
    Part.Circle(V(-250.705219, 15.238581, 0), V(0, 0, 1), 6.35),  # 0
    Part.Circle(V(-250.705219, -35.561419, 0), V(0, 0, 1), 6.35),  # 1
    Part.Circle(V(-250.705219, -86.361419, 0), V(0, 0, 1), 6.35),  # 2
    Part.Circle(V(-201.151382, -75.178518, 0), V(0, 0, 1), 6.35),  # 3
    Part.Circle(V(-150.542999, -70.770387, 0), V(0, 0, 1), 6.35),  # 4
], False)
sketch15.addConstraint([
    Sketcher.Constraint("Equal", 0, 1),
    Sketcher.Constraint("Equal", 1, 2),
    Sketcher.Constraint("Equal", 2, 3),
    Sketcher.Constraint("Equal", 3, 4),
    Sketcher.Constraint("Vertical", 0, 3, 1, 3),
    Sketcher.Constraint("Vertical", 1, 3, 2, 3),
    Sketcher.Constraint("Diameter", 0, Q("0.5 in")),
    Sketcher.Constraint("DistanceY", 1, 3, 0, 3, Q("2 in")),
    Sketcher.Constraint("DistanceY", 2, 3, 1, 3, Q("2 in")),
    Sketcher.Constraint("DistanceX", 4, 3, -1, 1, 150.542999),
    Sketcher.Constraint("DistanceY", 2, 3, 3, 3, 11.182901),
    Sketcher.Constraint("DistanceX", 0, 3, -1, 1, 250.705219),
    Sketcher.Constraint("DistanceY", -1, 1, 0, 3, 15.238581),
    Sketcher.Constraint("DistanceX", 3, 3, -1, 1, 201.151382),
    Sketcher.Constraint("DistanceY", 3, 3, 4, 3, 4.408131),
])
sketch15.setExpression("Constraints[6]", "Params.sketch15_diameter")
doc.recompute()
hole10 = body5.newObject("PartDesign::Hole", "Hole009")
hole10.Profile = sketch15
hole10.ThreadType = "None"
hole10.setExpression("Diameter", "Params.hole10_diameter")
hole10.DepthType = "ThroughAll"
hole10.Reversed = True
body6 = doc.addObject("PartDesign::Body", "Body005")

# Sketch on XZ plane
sketch16 = body6.newObject("Sketcher::SketchObject", "Sketch015")
sketch16.AttachmentSupport = (doc.getObject("XZ_Plane005"), [""])
sketch16.MapMode = "FlatFace"
sketch16.addGeometry([
    Part.LineSegment(V(-275.298663, 8.888581, 0), V(-263.001941, -38.736419, 0)),  # 0
    Part.ArcOfCircle(Part.Circle(V(-250.705219, -35.561419, 0), V(0, 0, 1), 12.7), math.radians(90), math.radians(194.477512)),  # 1
    Part.ArcOfCircle(Part.Circle(V(-250.705219, -35.561419, 0), V(0, 0, 1), 12.7), math.radians(0), math.radians(90)),  # 2
    Part.ArcOfCircle(Part.Circle(V(-250.705219, -35.561419, 0), V(0, 0, 1), 12.7), math.radians(-14.477512), math.radians(0)),  # 3
    Part.LineSegment(V(-238.408496, -38.736419, 0), V(-226.111774, 8.888581, 0)),  # 4
    Part.ArcOfCircle(Part.Circle(V(-250.705219, 15.238581, 0), V(0, 0, 1), 25.4), math.radians(-165.522488), math.radians(-14.477512)),  # 5
], False)
sketch16.addConstraint([
    Sketcher.Constraint("Tangent", 0, 2, 1, 2),
    Sketcher.Constraint("Tangent", 1, 1, 2, 2),
    Sketcher.Constraint("Tangent", 2, 1, 3, 2),
    Sketcher.Constraint("Tangent", 3, 1, 4, 1),
    Sketcher.Constraint("Tangent", 4, 2, 5, 2),
    Sketcher.Constraint("Tangent", 5, 1, 0, 1),
    Sketcher.Constraint("Coincident", 3, 3, 1, 3),
    Sketcher.Constraint("Horizontal", 3, 3, 2, 1),
    Sketcher.Constraint("Horizontal", 0, 2, 3, 1),
    Sketcher.Constraint("Vertical", 5, 3, 1, 1),
    Sketcher.Constraint("Radius", 5, Q("1 in")),
    Sketcher.Constraint("Radius", 1, Q("0.5 in")),
    Sketcher.Constraint("DistanceY", 1, 3, 5, 3, Q("2 in")),
    Sketcher.Constraint("DistanceX", 1, 3, -1, 1, 250.705219),
    Sketcher.Constraint("DistanceY", 1, 3, -1, 1, 35.561419),
])
sketch16.setExpression("Constraints[10]", "Params.sketch16_radius")
sketch16.setExpression("Constraints[11]", "Params.sketch16_radius2")
pad6 = body6.newObject("PartDesign::Pad", "Pad005")
pad6.Profile = sketch16
pad6.setExpression("Length", "Params.pad6_length")
body7 = doc.addObject("PartDesign::Body", "Body006")

# Sketch on XZ plane
sketch17 = body7.newObject("Sketcher::SketchObject", "Sketch016")
sketch17.AttachmentSupport = (doc.getObject("XZ_Plane006"), [""])
sketch17.MapMode = "FlatFace"
sketch17.addGeometry([
    Part.LineSegment(V(-229.858571, -71.850137, 0), V(-238.408496, -38.736419, 0)),  # 0
    Part.ArcOfCircle(Part.Circle(V(-250.705219, -35.561419, 0), V(0, 0, 1), 12.7), math.radians(-90), math.radians(-14.477512)),  # 1
    Part.ArcOfCircle(Part.Circle(V(-250.705219, -35.561419, 0), V(0, 0, 1), 12.7), math.radians(-165.522488), math.radians(-90)),  # 2
    Part.LineSegment(V(-263.001941, -38.736419, 0), V(-275.044912, -79.099234, 0)),  # 3
    Part.ArcOfCircle(Part.Circle(V(-250.705219, -86.361419, 0), V(0, 0, 1), 25.4), math.radians(90), math.radians(163.386582)),  # 4
    Part.ArcOfCircle(Part.Circle(V(-250.705219, -86.361419, 0), V(0, 0, 1), 25.4), math.radians(34.841647), math.radians(90)),  # 5
], False)
sketch17.addConstraint([
    Sketcher.Constraint("Coincident", 0, 2, 1, 2),
    Sketcher.Constraint("Tangent", 1, 1, 2, 2),
    Sketcher.Constraint("Coincident", 2, 1, 3, 1),
    Sketcher.Constraint("Tangent", 3, 2, 4, 2),
    Sketcher.Constraint("Tangent", 4, 1, 5, 2),
    Sketcher.Constraint("Coincident", 5, 1, 0, 1),
    Sketcher.Constraint("Equal", 1, 2),
    Sketcher.Constraint("Equal", 4, 5),
    Sketcher.Constraint("Horizontal", 0, 2, 2, 1),
    Sketcher.Constraint("Vertical", 2, 3, 4, 3),
    Sketcher.Constraint("Vertical", 5, 3, 1, 1),
    Sketcher.Constraint("Vertical", 1, 1, 4, 1),
    Sketcher.Constraint("Radius", 4, Q("1 in")),
    Sketcher.Constraint("Radius", 1, Q("0.5 in")),
    Sketcher.Constraint("DistanceY", 4, 3, 1, 3, Q("2 in")),
    Sketcher.Constraint("DistanceY", 0, 2, 1, 3, Q("0.125 in")),
    Sketcher.Constraint("Distance", 0, 34.199702),
    Sketcher.Constraint("DistanceX", 1, 3, -1, 1, 250.705219),
    Sketcher.Constraint("DistanceY", 1, 3, -1, 1, 35.561419),
])
sketch17.setExpression("Constraints[12]", "Params.sketch17_radius")
sketch17.setExpression("Constraints[13]", "Params.sketch17_radius2")
pad7 = body7.newObject("PartDesign::Pad", "Pad006")
pad7.Profile = sketch17
pad7.setExpression("Length", "Params.pad7_length")
body8 = doc.addObject("PartDesign::Body", "Body007")

# Sketch on XZ plane
sketch18 = body8.newObject("Sketcher::SketchObject", "Sketch017")
sketch18.AttachmentSupport = (doc.getObject("XZ_Plane007"), [""])
sketch18.MapMode = "FlatFace"
sketch18.addGeometry([
    Part.LineSegment(V(-159.003124, -46.820726, 0), V(-205.381444, -63.203687, 0)),  # 0
    Part.ArcOfCircle(Part.Circle(V(-201.151382, -75.178518, 0), V(0, 0, 1), 12.7), math.radians(4.978058), math.radians(109.45557)),  # 1
    Part.ArcOfCircle(Part.Circle(V(-201.151382, -75.178518, 0), V(0, 0, 1), 12.7), math.radians(0), math.radians(4.978058)),  # 2
    Part.ArcOfCircle(Part.Circle(V(-201.151382, -75.178518, 0), V(0, 0, 1), 12.7), math.radians(-62.805476), math.radians(0)),  # 3
    Part.LineSegment(V(-195.347318, -86.474661, 0), V(-156.268753, -95.516614, 0)),  # 4
    Part.ArcOfCircle(Part.Circle(V(-150.542999, -70.770387, 0), V(0, 0, 1), 25.4), math.radians(-175.021942), math.radians(-103.027775)),  # 5
    Part.ArcOfCircle(Part.Circle(V(-150.542999, -70.770387, 0), V(0, 0, 1), 25.4), math.radians(109.45557), math.radians(184.978058)),  # 6
], False)
sketch18.addConstraint([
    Sketcher.Constraint("Tangent", 0, 2, 1, 2),
    Sketcher.Constraint("Tangent", 1, 1, 2, 2),
    Sketcher.Constraint("Tangent", 2, 1, 3, 2),
    Sketcher.Constraint("Coincident", 3, 1, 4, 1),
    Sketcher.Constraint("Tangent", 4, 2, 5, 2),
    Sketcher.Constraint("Tangent", 5, 1, 6, 2),
    Sketcher.Constraint("Tangent", 6, 1, 0, 1),
    Sketcher.Constraint("Coincident", 3, 3, 1, 3),
    Sketcher.Constraint("Equal", 5, 6),
    Sketcher.Constraint("Horizontal", 3, 3, 2, 1),
    Sketcher.Constraint("Radius", 5, Q("1 in")),
    Sketcher.Constraint("Radius", 1, Q("0.5 in")),
    Sketcher.Constraint("DistanceY", 5, 3, 6, 1, Q("0.9429001 in")),
    Sketcher.Constraint("DistanceX", 5, 3, -1, 1, 150.542999),
    Sketcher.Constraint("DistanceY", 5, 3, 0, 2, 7.5667),
    Sketcher.Constraint("DistanceY", 1, 1, 0, 2, 10.872798),
    Sketcher.Constraint("DistanceY", 1, 3, -1, 1, 75.178518),
    Sketcher.Constraint("DistanceY", 3, 1, -1, 1, 86.474661),
    Sketcher.Constraint("DistanceX", 5, 1, -1, 1, 175.847191),
])
sketch18.setExpression("Constraints[10]", "Params.sketch18_radius")
sketch18.setExpression("Constraints[11]", "Params.sketch18_radius2")
pad8 = body8.newObject("PartDesign::Pad", "Pad007")
pad8.Profile = sketch18
pad8.setExpression("Length", "Params.pad8_length")
body9 = doc.addObject("PartDesign::Body", "Body008")

# Sketch on XZ plane
sketch19 = body9.newObject("Sketcher::SketchObject", "Sketch018")
sketch19.AttachmentSupport = (doc.getObject("XZ_Plane008"), [""])
sketch19.MapMode = "FlatFace"
sketch19.addGeometry([
    Part.ArcOfCircle(Part.Circle(V(-250.705219, -86.361419, 0), V(0, 0, 1), 25.4), math.radians(-62.805476), math.radians(0)),  # 0
    Part.LineSegment(V(-239.097091, -108.953704, 0), V(-195.347318, -86.474661, 0)),  # 1
    Part.ArcOfCircle(Part.Circle(V(-201.151382, -75.178518, 0), V(0, 0, 1), 12.7), math.radians(-167.282988), math.radians(-62.805476)),  # 2
    Part.ArcOfCircle(Part.Circle(V(-201.151382, -75.178518, 0), V(0, 0, 1), 12.7), math.radians(109.45557), math.radians(192.717012)),  # 3
    Part.LineSegment(V(-205.381444, -63.203687, 0), V(-229.858571, -71.850137, 0)),  # 4
    Part.ArcOfCircle(Part.Circle(V(-250.705219, -86.361419, 0), V(0, 0, 1), 25.4), math.radians(12.717012), math.radians(34.841647)),  # 5
    Part.ArcOfCircle(Part.Circle(V(-250.705219, -86.361419, 0), V(0, 0, 1), 25.4), math.radians(0), math.radians(12.717012)),  # 6
], False)
sketch19.addConstraint([
    Sketcher.Constraint("Tangent", 0, 1, 1, 1),
    Sketcher.Constraint("Tangent", 1, 2, 2, 2),
    Sketcher.Constraint("Tangent", 2, 1, 3, 2),
    Sketcher.Constraint("Tangent", 3, 1, 4, 1),
    Sketcher.Constraint("Coincident", 4, 2, 5, 2),
    Sketcher.Constraint("Tangent", 5, 1, 6, 2),
    Sketcher.Constraint("Tangent", 6, 1, 0, 2),
    Sketcher.Constraint("Coincident", 5, 3, 0, 3),
    Sketcher.Constraint("Equal", 2, 3),
    Sketcher.Constraint("Horizontal", 5, 3, 6, 1),
    Sketcher.Constraint("Radius", 0, Q("1 in")),
    Sketcher.Constraint("Radius", 2, Q("0.5 in")),
    Sketcher.Constraint("DistanceX", 5, 1, -1, 1, 225.9283),
    Sketcher.Constraint("DistanceY", 0, 3, 2, 3, 11.182901),
    Sketcher.Constraint("DistanceX", 6, 3, 1, 2, 55.357901),
    Sketcher.Constraint("DistanceX", 0, 3, -1, 1, 250.705219),
    Sketcher.Constraint("DistanceY", 0, 3, -1, 1, 86.361419),
    Sketcher.Constraint("DistanceX", 2, 1, -1, 1, 213.539841),
    Sketcher.Constraint("DistanceX", 4, 2, -1, 1, 229.858571),
])
sketch19.setExpression("Constraints[10]", "Params.sketch19_radius")
sketch19.setExpression("Constraints[11]", "Params.sketch19_radius2")
pad9 = body9.newObject("PartDesign::Pad", "Pad008")
pad9.Profile = sketch19
pad9.setExpression("Length", "Params.pad9_length")

doc.recompute()
